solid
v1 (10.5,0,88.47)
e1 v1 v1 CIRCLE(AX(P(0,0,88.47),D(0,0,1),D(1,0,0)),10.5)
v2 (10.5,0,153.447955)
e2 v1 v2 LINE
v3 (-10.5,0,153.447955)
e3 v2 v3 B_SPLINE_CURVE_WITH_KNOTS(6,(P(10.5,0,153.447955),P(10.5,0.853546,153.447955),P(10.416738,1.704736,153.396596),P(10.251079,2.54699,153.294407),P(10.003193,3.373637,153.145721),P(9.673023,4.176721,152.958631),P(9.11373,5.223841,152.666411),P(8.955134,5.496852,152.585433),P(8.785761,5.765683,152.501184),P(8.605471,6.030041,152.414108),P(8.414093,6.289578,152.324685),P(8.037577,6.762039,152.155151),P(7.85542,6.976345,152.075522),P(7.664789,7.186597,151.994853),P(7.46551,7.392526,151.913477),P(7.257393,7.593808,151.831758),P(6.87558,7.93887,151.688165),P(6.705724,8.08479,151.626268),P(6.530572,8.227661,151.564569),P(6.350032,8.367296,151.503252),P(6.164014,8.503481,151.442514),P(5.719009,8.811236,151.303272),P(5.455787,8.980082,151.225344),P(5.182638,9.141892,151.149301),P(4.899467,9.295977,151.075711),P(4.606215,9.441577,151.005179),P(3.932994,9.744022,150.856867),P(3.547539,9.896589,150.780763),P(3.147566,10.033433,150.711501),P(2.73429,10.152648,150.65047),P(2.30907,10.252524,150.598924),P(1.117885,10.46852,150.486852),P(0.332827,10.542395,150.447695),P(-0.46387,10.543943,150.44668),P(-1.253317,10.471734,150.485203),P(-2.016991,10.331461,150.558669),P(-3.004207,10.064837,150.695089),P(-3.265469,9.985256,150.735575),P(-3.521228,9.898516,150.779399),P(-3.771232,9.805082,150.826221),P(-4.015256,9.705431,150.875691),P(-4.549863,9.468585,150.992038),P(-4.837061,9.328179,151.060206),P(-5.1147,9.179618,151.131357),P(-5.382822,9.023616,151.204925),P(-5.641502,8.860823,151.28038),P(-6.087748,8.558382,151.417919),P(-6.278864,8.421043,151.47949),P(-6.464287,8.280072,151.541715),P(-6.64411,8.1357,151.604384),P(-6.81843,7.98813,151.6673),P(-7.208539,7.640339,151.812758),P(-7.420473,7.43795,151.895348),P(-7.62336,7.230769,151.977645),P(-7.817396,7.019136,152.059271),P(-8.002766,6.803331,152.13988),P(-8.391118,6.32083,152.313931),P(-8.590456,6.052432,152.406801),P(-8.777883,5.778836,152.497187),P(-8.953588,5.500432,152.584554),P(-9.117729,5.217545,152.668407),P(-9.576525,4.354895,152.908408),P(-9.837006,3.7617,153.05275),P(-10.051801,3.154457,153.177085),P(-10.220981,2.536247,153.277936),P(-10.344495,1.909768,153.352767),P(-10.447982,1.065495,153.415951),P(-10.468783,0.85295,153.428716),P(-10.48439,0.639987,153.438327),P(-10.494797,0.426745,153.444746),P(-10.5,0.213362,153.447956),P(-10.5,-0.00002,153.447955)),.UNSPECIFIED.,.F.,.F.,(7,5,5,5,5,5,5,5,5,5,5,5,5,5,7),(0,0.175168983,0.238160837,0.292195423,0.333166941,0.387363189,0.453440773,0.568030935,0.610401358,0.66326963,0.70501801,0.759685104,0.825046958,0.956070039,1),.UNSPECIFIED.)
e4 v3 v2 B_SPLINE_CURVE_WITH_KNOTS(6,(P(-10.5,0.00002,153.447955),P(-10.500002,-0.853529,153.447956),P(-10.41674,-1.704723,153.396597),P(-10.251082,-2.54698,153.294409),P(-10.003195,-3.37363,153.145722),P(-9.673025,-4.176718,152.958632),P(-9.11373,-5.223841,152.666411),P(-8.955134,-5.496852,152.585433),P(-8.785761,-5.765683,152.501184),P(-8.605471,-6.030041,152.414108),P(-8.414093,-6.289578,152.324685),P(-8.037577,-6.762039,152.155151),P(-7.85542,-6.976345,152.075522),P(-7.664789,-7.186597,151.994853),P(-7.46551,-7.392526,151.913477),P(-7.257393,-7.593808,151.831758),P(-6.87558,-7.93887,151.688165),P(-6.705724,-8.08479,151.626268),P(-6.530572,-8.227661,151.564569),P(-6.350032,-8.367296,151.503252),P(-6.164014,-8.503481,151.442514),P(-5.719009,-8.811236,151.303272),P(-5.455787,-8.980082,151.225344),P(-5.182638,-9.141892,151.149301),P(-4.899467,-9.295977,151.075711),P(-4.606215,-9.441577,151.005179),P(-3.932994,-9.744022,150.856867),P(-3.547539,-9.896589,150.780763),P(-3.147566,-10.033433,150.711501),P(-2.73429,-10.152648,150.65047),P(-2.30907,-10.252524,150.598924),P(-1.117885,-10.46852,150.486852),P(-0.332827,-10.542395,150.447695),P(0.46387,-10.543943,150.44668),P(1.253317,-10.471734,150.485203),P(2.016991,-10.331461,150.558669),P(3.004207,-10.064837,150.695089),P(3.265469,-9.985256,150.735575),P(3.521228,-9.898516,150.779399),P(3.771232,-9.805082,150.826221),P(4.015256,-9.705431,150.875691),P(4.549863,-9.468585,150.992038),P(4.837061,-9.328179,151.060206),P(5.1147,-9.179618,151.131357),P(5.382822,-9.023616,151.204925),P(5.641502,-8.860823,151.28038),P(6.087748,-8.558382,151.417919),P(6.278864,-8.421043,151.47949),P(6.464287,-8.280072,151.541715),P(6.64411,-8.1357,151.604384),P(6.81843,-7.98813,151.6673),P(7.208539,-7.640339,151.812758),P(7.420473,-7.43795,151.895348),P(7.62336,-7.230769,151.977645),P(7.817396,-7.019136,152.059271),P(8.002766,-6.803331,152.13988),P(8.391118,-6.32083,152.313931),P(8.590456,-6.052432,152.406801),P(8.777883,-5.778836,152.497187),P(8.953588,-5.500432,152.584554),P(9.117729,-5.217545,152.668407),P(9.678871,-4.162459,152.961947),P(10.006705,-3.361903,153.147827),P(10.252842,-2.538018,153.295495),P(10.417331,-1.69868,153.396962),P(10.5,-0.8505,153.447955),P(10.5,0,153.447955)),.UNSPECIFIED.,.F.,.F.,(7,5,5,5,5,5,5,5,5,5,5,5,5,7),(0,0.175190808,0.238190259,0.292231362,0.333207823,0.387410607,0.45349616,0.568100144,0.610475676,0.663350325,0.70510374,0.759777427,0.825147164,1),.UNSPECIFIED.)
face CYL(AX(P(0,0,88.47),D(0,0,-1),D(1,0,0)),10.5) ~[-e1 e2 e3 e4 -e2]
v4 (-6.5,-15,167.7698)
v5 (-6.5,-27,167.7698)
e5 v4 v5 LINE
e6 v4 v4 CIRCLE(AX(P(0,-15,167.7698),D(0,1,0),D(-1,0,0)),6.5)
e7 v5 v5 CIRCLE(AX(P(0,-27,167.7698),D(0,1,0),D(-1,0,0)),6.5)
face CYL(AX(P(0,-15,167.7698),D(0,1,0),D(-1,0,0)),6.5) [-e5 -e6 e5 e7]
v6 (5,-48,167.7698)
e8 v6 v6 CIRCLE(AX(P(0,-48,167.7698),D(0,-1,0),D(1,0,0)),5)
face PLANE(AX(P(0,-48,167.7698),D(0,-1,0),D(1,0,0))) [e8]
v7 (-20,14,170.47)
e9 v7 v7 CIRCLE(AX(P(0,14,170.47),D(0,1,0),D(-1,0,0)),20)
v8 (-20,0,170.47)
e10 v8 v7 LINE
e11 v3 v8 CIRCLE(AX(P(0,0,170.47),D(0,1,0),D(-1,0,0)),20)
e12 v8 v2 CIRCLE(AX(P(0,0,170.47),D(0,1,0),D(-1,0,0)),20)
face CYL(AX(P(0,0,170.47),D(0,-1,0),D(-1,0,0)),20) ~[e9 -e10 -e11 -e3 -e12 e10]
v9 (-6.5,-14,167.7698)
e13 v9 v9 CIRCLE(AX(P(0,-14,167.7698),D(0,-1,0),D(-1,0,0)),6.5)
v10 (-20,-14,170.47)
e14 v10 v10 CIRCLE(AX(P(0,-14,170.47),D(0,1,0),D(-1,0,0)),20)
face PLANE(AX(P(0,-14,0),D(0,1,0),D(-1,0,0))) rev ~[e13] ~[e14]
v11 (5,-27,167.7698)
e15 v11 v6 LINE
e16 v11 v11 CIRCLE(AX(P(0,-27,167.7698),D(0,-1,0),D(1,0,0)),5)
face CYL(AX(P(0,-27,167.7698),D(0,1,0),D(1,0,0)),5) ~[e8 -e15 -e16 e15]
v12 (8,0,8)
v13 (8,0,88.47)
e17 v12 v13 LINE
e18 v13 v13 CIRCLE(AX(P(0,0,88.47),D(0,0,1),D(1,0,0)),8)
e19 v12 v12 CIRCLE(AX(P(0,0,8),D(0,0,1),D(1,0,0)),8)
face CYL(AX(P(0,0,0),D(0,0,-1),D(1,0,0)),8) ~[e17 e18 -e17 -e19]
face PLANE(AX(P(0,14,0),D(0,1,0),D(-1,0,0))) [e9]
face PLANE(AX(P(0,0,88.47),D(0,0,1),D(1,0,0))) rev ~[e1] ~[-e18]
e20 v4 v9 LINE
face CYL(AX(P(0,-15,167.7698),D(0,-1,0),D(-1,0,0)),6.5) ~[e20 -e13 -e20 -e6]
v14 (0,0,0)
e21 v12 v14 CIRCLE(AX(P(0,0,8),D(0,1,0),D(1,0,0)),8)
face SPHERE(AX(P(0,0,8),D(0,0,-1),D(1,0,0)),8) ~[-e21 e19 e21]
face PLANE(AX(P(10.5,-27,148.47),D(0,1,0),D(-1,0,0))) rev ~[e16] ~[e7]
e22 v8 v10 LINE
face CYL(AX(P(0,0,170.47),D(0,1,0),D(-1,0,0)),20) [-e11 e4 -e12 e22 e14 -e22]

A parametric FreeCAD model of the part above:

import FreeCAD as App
import Part
import Sketcher
from FreeCAD import Vector
Q = App.Units.Quantity


def edges_at(feature, points):
    """Names of the edges that pass closest to the given points."""
    edges = feature.Shape.Edges
    near = lambda p: min(range(len(edges)), key=lambda i: edges[i].distToShape(Part.Vertex(*p))[0])
    return sorted({f"Edge{near(p) + 1}" for p in points})

doc = App.newDocument("Part")
body = doc.addObject("PartDesign::Body", "Body")

# Sketch on XY plane
sketch1 = body.newObject("Sketcher::SketchObject", "Sketch")
sketch1.AttachmentSupport = (doc.getObject("XY_Plane"), [""])
sketch1.MapMode = "FlatFace"
sketch1.addGeometry(Part.Circle(Vector(0, 0, 0), Vector(0, 0, 1), 8), False)
sketch1.addConstraint([
    Sketcher.Constraint("Coincident", 0, 3, -1, 1),
    Sketcher.Constraint("Diameter", 0, Q("16 mm")),
])
pad1 = body.newObject("PartDesign::Pad", "Pad")
pad1.Profile = sketch1
pad1.Length = 88.47

# Sketch on XY plane
sketch2 = body.newObject("Sketcher::SketchObject", "Sketch001")
sketch2.AttachmentSupport = (doc.getObject("XY_Plane"), [""])
sketch2.MapMode = "FlatFace"
sketch2.AttachmentOffset = App.Placement(Vector(0, 0, 88.47), App.Rotation())
sketch2.addGeometry(Part.Circle(Vector(0, 0, 0), Vector(0, 0, 1), 10.5), False)
sketch2.addConstraint([
    Sketcher.Constraint("Coincident", 0, 3, -1, 1),
    Sketcher.Constraint("Diameter", 0, Q("21 mm")),
])
pad2 = body.newObject("PartDesign::Pad", "Pad001")
pad2.Profile = sketch2
pad2.Length = 82
doc.recompute()

fillet = body.newObject("PartDesign::Fillet", "Fillet")
fillet.Base = (pad2, edges_at(pad2, [(-8, 0, 0)]))
fillet.Radius = 8

# Sketch on XZ plane
sketch3 = body.newObject("Sketcher::SketchObject", "Sketch002")
sketch3.AttachmentSupport = (doc.getObject("XZ_Plane"), [""])
sketch3.MapMode = "FlatFace"
sketch3.addGeometry(Part.Circle(Vector(0, 170.47, 0), Vector(0, 0, 1), 20), False)
sketch3.addConstraint([
    Sketcher.Constraint("PointOnObject", 0, 3, -2),
    Sketcher.Constraint("Diameter", 0, Q("40 mm")),
    Sketcher.Constraint("DistanceY", -1, 1, 0, 3, Q("170.47 mm")),
])
pad3 = body.newObject("PartDesign::Pad", "Pad002")
pad3.Profile = sketch3
pad3.Length = 28
pad3.Midplane = True

# Sketch on XZ plane
sketch4 = body.newObject("Sketcher::SketchObject", "Sketch003")
sketch4.AttachmentSupport = (doc.getObject("XZ_Plane"), [""])
sketch4.MapMode = "FlatFace"
sketch4.AttachmentOffset = App.Placement(Vector(0, 0, 15), App.Rotation())
sketch4.addGeometry(Part.Circle(Vector(0, 167.7698, 0), Vector(0, 0, 1), 6.5), False)
sketch4.addConstraint([
    Sketcher.Constraint("PointOnObject", 0, 3, -2),
    Sketcher.Constraint("Diameter", 0, Q("13 mm")),
    Sketcher.Constraint("DistanceY", -1, 1, 0, 3, Q("167.7698 mm")),
])
pad4 = body.newObject("PartDesign::Pad", "Pad003")
pad4.Profile = sketch4
pad4.Length = 24
pad4.Midplane = True

# Sketch on XZ plane
sketch5 = body.newObject("Sketcher::SketchObject", "Sketch004")
sketch5.AttachmentSupport = (doc.getObject("XZ_Plane"), [""])
sketch5.MapMode = "FlatFace"
sketch5.AttachmentOffset = App.Placement(Vector(0, 0, 27), App.Rotation())
sketch5.addGeometry(Part.Circle(Vector(0, 167.7698, 0), Vector(0, 0, 1), 5), False)
sketch5.addConstraint([
    Sketcher.Constraint("PointOnObject", 0, 3, -2),
    Sketcher.Constraint("Diameter", 0, Q("10 mm")),
    Sketcher.Constraint("DistanceY", -1, 1, 0, 3, Q("167.7698 mm")),
])
pad5 = body.newObject("PartDesign::Pad", "Pad004")
pad5.Profile = sketch5
pad5.Length = 21

doc.recompute()
